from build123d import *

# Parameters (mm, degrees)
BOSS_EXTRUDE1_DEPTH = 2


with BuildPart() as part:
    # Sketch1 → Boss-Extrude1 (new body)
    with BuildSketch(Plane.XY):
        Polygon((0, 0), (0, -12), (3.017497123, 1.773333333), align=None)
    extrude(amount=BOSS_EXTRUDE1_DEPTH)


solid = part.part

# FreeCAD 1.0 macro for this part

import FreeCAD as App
import Part
import Sketcher
from FreeCAD import Vector
Q = App.Units.Quantity


def add_polygon(sketch, points):
    """Adds a closed chain of lines whose ends are joined by coincident constraints."""
    first, n = sketch.GeometryCount, len(points)
    for a, b in zip(points, points[1:] + points[:1]):
        sketch.addGeometry(Part.LineSegment(App.Vector(*a, 0), App.Vector(*b, 0)), False)
    for i in range(n):
        sketch.addConstraint(Sketcher.Constraint("Coincident", first + i, 2, first + (i + 1) % n, 1))

doc = App.newDocument("Part")
params = doc.addObject("Spreadsheet::Sheet", "Params")
for row, (alias, value) in enumerate([
    ("sketch1_height", "12 mm"),
    ("sketch1_length", "14.1 mm"),
    ("sketch1_length2", "3.5 mm"),
    ("pad1_length", "2 mm"),
], start=1):
    params.set(f"A{row}", alias)
    params.set(f"B{row}", "=" + value)
    params.setAlias(f"B{row}", alias)

body = doc.addObject("PartDesign::Body", "Body")

# Sketch on XY plane
sketch1 = body.newObject("Sketcher::SketchObject", "Sketch")
sketch1.AttachmentSupport = (doc.getObject("XY_Plane"), [""])
sketch1.MapMode = "FlatFace"
add_polygon(sketch1, [(0, 0), (0, -12), (3, 1.8)])  # lines 0-2
sketch1.addConstraint(Sketcher.Constraint("Vertical", 0))
sketch1.addConstraint(Sketcher.Constraint("Coincident", 2, 2, -1, 1))
sketch1.addConstraint(Sketcher.Constraint("DistanceY", 0, 2, 0, 1, Q("12 mm")))
sketch1.addConstraint(Sketcher.Constraint("Distance", 1, Q("14.1 mm")))
sketch1.addConstraint(Sketcher.Constraint("Distance", 2, Q("3.5 mm")))
sketch1.setExpression("Constraints[5]", "Params.sketch1_height")
sketch1.setExpression("Constraints[6]", "Params.sketch1_length")
sketch1.setExpression("Constraints[7]", "Params.sketch1_length2")
pad1 = body.newObject("PartDesign::Pad", "Pad")
pad1.Profile = sketch1
pad1.setExpression("Length", "Params.pad1_length")

doc.recompute()
